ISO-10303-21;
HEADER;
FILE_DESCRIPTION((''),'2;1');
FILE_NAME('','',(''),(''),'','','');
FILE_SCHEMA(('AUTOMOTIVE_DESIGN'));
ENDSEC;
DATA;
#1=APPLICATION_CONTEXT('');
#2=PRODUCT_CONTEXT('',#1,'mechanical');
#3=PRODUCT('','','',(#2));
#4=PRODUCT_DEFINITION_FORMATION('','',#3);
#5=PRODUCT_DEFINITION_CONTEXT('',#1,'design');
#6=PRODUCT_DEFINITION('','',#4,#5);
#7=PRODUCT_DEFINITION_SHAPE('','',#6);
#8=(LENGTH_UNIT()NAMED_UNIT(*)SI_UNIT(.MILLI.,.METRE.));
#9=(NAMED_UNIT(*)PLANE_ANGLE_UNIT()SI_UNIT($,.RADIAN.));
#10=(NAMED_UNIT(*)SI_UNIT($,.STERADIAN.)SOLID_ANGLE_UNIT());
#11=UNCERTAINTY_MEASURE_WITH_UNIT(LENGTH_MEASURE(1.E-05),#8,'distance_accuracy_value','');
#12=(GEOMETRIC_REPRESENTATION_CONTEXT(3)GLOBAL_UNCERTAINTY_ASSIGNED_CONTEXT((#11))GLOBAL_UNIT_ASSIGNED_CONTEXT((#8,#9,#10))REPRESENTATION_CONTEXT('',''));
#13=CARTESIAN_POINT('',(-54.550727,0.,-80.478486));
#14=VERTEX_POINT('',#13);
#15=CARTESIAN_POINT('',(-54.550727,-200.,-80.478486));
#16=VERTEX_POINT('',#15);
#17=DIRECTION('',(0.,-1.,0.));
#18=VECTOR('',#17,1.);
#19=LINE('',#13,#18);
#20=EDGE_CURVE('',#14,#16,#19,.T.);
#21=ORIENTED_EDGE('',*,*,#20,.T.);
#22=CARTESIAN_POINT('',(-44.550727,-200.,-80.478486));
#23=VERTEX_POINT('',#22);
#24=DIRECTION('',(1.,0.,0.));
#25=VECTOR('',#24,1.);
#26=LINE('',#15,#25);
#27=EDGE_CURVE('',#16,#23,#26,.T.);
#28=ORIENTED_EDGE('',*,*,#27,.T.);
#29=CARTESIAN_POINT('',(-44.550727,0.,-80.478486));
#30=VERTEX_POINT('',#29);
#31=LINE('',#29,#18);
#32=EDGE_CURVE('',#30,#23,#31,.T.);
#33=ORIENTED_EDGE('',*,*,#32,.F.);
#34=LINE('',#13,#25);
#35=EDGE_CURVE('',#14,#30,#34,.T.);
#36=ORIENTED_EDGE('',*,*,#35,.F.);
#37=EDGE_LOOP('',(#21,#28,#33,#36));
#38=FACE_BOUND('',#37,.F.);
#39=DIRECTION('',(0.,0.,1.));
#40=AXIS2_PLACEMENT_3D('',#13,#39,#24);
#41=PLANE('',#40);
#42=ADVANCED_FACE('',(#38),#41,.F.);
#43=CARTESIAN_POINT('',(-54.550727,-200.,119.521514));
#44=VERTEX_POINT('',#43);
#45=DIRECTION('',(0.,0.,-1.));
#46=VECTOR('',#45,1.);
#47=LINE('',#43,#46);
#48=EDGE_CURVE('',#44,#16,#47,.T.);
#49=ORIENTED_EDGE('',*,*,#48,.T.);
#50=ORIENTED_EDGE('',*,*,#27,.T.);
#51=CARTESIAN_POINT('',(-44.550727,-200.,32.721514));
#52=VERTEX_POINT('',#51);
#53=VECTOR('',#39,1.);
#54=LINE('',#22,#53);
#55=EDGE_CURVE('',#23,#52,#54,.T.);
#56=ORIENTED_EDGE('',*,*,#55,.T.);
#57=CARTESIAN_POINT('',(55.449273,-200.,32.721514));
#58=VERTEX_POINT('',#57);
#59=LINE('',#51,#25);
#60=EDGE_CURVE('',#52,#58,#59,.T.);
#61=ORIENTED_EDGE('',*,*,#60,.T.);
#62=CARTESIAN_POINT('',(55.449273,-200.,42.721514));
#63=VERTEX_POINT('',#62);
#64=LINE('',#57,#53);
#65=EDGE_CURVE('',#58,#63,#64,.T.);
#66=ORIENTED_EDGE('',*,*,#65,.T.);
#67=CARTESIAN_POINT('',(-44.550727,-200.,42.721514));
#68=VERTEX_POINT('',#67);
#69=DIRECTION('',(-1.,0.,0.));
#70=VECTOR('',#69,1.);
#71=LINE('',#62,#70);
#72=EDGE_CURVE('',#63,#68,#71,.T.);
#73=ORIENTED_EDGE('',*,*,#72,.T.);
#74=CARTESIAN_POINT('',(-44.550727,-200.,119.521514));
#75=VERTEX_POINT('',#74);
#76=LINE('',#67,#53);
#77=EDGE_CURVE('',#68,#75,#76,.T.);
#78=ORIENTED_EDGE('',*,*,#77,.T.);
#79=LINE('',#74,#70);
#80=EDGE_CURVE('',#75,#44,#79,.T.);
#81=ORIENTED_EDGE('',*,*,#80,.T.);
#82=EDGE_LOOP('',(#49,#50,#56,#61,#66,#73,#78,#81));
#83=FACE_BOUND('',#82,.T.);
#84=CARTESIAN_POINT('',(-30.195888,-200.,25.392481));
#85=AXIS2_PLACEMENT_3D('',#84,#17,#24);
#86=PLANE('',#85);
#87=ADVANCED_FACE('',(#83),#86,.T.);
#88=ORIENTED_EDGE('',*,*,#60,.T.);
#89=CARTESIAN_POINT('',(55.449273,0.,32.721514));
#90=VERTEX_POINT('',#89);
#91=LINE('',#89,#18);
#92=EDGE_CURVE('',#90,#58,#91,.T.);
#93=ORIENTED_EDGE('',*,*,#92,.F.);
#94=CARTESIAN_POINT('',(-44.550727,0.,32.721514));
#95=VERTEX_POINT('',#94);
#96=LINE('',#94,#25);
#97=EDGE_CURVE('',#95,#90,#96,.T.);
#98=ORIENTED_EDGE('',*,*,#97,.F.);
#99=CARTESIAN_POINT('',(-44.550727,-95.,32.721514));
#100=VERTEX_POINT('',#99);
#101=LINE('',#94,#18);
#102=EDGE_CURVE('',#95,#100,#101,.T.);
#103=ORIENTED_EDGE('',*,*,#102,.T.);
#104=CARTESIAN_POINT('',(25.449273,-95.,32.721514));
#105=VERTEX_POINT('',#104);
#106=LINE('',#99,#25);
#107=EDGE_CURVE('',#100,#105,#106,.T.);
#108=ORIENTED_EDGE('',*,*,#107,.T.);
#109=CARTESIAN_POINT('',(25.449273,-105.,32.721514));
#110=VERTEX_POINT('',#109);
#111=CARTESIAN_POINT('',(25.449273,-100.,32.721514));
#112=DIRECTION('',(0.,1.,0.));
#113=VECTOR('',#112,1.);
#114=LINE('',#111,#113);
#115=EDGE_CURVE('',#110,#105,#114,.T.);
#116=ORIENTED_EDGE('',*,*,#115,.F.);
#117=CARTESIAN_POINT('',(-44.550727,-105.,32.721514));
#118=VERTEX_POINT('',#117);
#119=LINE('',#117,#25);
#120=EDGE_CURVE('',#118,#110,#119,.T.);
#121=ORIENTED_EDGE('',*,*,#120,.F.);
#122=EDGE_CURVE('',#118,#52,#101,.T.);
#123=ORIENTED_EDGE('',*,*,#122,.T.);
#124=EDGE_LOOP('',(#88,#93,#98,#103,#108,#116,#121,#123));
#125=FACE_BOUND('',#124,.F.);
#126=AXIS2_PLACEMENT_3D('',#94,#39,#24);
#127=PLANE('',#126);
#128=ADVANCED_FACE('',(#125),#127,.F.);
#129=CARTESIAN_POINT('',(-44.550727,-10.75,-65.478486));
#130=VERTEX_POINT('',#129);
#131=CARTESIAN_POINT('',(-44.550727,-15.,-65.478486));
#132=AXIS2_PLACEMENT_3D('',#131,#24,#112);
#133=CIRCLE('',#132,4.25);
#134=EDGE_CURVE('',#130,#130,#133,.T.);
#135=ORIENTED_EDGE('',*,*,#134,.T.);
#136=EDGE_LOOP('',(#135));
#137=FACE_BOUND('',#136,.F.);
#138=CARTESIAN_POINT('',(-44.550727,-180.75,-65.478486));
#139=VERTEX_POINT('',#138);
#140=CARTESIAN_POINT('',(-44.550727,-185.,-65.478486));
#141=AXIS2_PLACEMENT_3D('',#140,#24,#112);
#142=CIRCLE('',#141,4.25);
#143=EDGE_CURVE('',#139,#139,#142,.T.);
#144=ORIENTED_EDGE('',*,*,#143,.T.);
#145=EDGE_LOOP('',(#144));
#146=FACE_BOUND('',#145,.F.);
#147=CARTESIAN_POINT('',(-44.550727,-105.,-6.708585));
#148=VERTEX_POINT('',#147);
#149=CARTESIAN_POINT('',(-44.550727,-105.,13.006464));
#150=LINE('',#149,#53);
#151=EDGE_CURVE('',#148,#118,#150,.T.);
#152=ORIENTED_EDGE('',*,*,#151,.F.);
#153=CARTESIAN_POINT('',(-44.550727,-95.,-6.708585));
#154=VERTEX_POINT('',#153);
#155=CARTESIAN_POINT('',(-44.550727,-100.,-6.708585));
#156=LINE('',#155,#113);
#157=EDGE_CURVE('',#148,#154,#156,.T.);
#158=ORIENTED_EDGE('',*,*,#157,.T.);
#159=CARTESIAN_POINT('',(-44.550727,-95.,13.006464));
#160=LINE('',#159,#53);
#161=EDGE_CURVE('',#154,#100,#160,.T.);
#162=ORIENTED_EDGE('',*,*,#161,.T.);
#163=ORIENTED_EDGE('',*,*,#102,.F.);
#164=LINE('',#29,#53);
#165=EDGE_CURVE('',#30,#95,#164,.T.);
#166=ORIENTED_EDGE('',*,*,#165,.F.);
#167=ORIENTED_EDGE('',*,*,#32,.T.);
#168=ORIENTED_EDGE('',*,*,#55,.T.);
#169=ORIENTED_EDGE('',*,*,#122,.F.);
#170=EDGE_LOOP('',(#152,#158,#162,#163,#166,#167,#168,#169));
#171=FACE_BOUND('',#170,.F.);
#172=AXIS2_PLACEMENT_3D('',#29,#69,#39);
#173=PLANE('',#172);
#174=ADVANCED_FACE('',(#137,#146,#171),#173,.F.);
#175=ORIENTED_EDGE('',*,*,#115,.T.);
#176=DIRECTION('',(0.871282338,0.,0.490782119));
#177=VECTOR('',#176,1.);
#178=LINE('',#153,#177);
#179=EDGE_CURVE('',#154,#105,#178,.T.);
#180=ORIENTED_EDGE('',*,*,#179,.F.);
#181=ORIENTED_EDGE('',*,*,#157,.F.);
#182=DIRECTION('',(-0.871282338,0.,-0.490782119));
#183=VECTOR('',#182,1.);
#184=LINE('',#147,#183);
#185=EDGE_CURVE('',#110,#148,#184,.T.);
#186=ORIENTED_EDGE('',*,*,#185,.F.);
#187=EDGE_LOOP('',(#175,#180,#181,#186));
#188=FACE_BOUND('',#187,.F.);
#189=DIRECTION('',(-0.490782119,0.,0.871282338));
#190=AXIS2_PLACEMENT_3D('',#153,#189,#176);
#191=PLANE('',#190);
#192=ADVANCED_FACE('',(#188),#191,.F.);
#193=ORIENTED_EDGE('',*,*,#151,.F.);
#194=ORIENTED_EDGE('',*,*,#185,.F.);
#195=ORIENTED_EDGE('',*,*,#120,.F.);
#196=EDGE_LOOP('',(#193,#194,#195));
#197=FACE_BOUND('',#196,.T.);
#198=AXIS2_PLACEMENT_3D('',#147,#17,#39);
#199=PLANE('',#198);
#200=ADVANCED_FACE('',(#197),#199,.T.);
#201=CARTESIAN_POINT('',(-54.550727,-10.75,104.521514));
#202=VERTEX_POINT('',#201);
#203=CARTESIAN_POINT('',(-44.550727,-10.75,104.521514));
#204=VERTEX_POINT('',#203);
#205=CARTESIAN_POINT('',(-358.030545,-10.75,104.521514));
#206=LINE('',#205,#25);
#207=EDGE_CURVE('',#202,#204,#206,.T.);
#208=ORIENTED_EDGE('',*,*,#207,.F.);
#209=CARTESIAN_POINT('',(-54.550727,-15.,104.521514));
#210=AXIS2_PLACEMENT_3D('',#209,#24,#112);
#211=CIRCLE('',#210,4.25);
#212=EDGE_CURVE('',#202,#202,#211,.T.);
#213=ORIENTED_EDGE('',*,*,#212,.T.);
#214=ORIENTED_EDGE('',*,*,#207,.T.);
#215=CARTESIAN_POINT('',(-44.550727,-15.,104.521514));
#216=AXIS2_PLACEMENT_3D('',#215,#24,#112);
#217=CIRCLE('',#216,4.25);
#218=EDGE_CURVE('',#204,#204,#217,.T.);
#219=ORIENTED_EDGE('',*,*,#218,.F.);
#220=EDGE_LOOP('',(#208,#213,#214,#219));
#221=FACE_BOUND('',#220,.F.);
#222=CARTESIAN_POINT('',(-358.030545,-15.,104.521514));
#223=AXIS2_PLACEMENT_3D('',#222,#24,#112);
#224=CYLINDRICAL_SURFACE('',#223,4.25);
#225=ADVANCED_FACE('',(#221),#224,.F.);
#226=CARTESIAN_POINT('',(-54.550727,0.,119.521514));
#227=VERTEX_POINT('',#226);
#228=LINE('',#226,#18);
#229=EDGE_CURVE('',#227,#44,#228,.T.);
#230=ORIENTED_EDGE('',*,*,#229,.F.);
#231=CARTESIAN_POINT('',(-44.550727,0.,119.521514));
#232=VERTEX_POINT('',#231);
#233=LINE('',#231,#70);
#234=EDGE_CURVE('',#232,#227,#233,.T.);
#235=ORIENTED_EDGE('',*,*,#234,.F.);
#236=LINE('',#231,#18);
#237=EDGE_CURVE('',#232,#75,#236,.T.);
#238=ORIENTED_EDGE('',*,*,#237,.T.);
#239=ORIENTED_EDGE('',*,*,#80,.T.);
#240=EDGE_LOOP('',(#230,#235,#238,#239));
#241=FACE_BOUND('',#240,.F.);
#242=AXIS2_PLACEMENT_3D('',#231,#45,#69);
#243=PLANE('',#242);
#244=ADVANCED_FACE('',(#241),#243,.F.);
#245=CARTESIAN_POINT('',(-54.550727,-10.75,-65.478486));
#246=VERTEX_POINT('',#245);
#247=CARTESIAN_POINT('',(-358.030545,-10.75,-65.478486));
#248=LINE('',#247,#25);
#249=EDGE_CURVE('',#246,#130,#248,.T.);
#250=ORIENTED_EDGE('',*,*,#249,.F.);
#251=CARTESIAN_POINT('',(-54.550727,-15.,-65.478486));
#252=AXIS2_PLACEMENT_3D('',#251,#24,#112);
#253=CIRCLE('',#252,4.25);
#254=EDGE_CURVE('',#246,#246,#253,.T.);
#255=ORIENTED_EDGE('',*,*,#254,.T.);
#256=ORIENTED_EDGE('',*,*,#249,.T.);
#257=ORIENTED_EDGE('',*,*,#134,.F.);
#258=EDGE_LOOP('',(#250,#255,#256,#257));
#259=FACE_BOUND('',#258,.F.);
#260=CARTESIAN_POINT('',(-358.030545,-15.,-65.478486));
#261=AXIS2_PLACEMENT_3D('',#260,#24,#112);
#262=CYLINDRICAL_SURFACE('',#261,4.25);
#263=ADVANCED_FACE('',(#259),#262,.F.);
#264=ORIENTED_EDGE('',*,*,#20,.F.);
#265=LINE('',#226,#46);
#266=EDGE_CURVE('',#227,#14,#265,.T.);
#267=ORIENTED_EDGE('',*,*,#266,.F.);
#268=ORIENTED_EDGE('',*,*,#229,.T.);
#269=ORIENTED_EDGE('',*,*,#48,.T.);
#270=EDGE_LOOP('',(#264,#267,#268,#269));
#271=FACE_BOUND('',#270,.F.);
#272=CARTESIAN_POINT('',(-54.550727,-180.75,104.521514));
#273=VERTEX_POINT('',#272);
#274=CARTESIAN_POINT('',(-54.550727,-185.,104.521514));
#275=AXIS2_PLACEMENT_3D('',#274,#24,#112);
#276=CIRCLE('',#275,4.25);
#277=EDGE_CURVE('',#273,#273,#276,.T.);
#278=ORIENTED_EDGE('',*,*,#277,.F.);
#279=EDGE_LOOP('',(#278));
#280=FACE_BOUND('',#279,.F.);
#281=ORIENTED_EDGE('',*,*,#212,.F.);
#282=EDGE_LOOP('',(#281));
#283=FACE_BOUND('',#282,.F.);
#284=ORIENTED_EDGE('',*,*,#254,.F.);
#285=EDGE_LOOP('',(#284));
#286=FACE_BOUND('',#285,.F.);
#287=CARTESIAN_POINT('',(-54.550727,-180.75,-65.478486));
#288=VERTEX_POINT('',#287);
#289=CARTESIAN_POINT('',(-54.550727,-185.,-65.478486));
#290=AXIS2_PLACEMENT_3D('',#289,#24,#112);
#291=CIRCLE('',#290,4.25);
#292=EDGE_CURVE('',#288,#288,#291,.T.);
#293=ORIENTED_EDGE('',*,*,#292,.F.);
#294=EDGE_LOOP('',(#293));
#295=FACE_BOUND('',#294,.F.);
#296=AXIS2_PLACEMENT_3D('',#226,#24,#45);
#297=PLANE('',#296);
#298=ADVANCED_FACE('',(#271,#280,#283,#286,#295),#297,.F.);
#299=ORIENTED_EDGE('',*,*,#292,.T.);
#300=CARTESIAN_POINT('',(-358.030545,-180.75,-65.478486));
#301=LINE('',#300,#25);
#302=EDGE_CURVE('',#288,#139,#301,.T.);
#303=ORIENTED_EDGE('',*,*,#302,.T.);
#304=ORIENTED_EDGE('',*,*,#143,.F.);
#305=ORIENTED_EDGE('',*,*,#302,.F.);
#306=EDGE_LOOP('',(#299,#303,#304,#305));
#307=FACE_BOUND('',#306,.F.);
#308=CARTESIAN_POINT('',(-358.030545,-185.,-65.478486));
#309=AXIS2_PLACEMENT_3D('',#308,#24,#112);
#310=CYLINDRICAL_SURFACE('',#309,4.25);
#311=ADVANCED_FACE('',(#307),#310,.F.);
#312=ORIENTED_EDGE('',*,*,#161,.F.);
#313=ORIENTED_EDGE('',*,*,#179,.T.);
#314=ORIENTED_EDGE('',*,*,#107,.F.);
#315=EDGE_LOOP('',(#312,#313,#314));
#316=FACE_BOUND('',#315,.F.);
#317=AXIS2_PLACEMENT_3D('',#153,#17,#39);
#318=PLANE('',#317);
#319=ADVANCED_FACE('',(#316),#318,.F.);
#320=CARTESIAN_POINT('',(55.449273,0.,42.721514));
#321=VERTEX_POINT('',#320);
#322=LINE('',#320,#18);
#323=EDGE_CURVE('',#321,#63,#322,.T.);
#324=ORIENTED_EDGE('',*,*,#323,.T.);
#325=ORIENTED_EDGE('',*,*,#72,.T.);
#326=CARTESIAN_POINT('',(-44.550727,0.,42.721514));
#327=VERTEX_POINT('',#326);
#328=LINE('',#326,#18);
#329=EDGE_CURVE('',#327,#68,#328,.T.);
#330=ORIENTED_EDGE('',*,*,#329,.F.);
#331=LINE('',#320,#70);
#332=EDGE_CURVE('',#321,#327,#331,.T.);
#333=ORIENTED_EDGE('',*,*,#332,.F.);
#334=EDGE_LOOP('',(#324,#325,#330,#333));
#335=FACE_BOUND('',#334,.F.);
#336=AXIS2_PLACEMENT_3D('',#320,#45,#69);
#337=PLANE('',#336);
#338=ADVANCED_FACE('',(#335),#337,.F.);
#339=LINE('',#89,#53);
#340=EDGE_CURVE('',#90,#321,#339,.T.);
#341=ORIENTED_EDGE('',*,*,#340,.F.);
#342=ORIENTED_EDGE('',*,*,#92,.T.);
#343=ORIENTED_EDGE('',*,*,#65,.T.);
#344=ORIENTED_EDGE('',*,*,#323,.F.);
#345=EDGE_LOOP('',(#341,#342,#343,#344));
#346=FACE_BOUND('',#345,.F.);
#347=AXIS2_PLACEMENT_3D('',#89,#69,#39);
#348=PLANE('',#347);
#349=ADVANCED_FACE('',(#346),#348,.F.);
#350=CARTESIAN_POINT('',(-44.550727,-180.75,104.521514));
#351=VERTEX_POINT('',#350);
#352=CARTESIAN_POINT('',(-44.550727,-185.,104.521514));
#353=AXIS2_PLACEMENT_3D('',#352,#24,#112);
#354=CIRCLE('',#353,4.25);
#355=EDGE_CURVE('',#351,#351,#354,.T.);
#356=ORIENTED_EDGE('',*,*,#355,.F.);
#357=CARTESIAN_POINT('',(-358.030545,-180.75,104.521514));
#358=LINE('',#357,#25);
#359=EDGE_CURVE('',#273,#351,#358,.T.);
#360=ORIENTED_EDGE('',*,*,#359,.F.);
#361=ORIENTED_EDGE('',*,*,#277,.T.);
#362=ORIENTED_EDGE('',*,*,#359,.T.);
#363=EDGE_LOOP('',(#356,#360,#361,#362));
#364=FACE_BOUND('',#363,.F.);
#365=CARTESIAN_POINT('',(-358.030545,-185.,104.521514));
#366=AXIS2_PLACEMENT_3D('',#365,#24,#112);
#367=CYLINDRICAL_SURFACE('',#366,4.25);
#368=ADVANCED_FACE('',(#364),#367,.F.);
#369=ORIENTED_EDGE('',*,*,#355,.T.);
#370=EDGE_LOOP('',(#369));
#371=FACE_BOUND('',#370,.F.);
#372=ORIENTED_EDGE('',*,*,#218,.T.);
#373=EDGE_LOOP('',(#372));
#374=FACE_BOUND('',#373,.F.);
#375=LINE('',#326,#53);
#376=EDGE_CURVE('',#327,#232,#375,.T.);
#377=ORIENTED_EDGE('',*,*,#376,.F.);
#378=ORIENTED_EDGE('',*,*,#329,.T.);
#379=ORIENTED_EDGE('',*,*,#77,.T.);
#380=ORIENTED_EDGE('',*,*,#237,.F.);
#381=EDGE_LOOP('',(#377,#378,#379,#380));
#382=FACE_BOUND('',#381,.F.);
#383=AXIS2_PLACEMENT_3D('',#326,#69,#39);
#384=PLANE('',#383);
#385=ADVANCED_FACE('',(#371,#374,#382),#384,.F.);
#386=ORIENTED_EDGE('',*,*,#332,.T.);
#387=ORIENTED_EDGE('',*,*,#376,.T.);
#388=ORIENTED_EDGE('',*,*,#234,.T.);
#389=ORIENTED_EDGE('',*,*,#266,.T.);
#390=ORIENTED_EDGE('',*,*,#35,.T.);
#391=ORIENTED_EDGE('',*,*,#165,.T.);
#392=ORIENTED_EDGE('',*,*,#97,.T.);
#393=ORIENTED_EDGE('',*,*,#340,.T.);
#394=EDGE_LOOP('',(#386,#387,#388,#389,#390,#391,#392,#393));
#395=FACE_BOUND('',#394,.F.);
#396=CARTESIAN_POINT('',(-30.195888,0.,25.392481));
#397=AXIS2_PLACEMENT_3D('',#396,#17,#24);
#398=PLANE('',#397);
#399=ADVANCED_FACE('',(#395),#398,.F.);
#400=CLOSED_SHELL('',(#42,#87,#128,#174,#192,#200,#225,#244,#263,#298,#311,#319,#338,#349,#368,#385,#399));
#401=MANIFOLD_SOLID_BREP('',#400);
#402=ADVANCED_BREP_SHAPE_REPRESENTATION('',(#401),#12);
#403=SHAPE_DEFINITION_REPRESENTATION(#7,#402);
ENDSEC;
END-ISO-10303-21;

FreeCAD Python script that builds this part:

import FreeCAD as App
import Part
import Sketcher


def add_polygon(sketch, points):
    """Adds a closed chain of lines whose ends are joined by coincident constraints."""
    first, n = sketch.GeometryCount, len(points)
    for a, b in zip(points, points[1:] + points[:1]):
        sketch.addGeometry(Part.LineSegment(App.Vector(*a, 0), App.Vector(*b, 0)), False)
    for i in range(n):
        sketch.addConstraint(Sketcher.Constraint("Coincident", first + i, 2, first + (i + 1) % n, 1))

doc = App.newDocument("Part")
body = doc.addObject("PartDesign::Body", "Body")

# Sketch on XZ plane
sketch1 = body.newObject("Sketcher::SketchObject", "Sketch")
sketch1.AttachmentSupport = (doc.getObject("XZ_Plane"), [""])
sketch1.MapMode = "FlatFace"
add_polygon(sketch1, [(-45, 120), (-55, 120), (-55, -80), (-45, -80), (-45, 33), (55, 33), (55, 43), (-45, 43)])  # lines 0-7
sketch1.addConstraint(Sketcher.Constraint("Horizontal", 0))
sketch1.addConstraint(Sketcher.Constraint("Vertical", 1))
sketch1.addConstraint(Sketcher.Constraint("Horizontal", 2))
sketch1.addConstraint(Sketcher.Constraint("Vertical", 3))
sketch1.addConstraint(Sketcher.Constraint("Horizontal", 4))
sketch1.addConstraint(Sketcher.Constraint("Vertical", 5))
sketch1.addConstraint(Sketcher.Constraint("Horizontal", 6))
sketch1.addConstraint(Sketcher.Constraint("Vertical", 7))
sketch1.addConstraint(Sketcher.Constraint("Vertical", 3, 2, 6, 2))
sketch1.addConstraint(Sketcher.Constraint("Equal", 2, 5))
sketch1.addConstraint(Sketcher.Constraint("DistanceX", 0, 2, 0, 1, 10.0))
sketch1.addConstraint(Sketcher.Constraint("DistanceX", 4, 1, 4, 2, 100.0))
sketch1.addConstraint(Sketcher.Constraint("DistanceY", 1, 2, 1, 1, 200.0))
sketch1.addConstraint(Sketcher.Constraint("DistanceY", 3, 1, 3, 2, 113.2))
sketch1.addConstraint(Sketcher.Constraint("DistanceX", 0, 2, -1, 1, 54.550727))
sketch1.addConstraint(Sketcher.Constraint("DistanceY", -1, 1, 0, 2, 119.521514))
pad1 = body.newObject("PartDesign::Pad", "Pad")
pad1.Profile = sketch1
pad1.Length = 200

# Sketch on YZ plane
sketch2 = body.newObject("Sketcher::SketchObject", "Sketch001")
sketch2.AttachmentSupport = (doc.getObject("YZ_Plane"), [""])
sketch2.MapMode = "FlatFace"
sketch2.AttachmentOffset = App.Placement(App.Vector(0, 0, -44.550727), App.Rotation())
add_polygon(sketch2, [(-105, 33), (-105, -7), (-95, -7), (-95, 33)])  # lines 0-3
sketch2.addConstraint(Sketcher.Constraint("Vertical", 0))
sketch2.addConstraint(Sketcher.Constraint("Horizontal", 1))
sketch2.addConstraint(Sketcher.Constraint("Vertical", 2))
sketch2.addConstraint(Sketcher.Constraint("Horizontal", 3))
sketch2.addConstraint(Sketcher.Constraint("DistanceX", 1, 1, 1, 2, 10.0))
sketch2.addConstraint(Sketcher.Constraint("DistanceX", 0, 2, -1, 1, 105.0))
sketch2.addConstraint(Sketcher.Constraint("DistanceY", 0, 2, 0, 1, 39.430098))
sketch2.addConstraint(Sketcher.Constraint("DistanceY", 0, 2, -1, 1, 6.708585))
pad2 = body.newObject("PartDesign::Pad", "Pad001")
pad2.Profile = sketch2
pad2.Length = 70

# Sketch on XZ plane
sketch3 = body.newObject("Sketcher::SketchObject", "Sketch002")
sketch3.AttachmentSupport = (doc.getObject("XZ_Plane"), [""])
sketch3.MapMode = "FlatFace"
sketch3.AttachmentOffset = App.Placement(App.Vector(0, 0, 95), App.Rotation())
add_polygon(sketch3, [(-45, -7), (25, 33), (25, -7)])  # lines 0-2
sketch3.addConstraint(Sketcher.Constraint("Vertical", 1))
sketch3.addConstraint(Sketcher.Constraint("Horizontal", 2))
sketch3.addConstraint(Sketcher.Constraint("DistanceX", 2, 2, 2, 1, 70.0))
sketch3.addConstraint(Sketcher.Constraint("DistanceY", 1, 2, 1, 1, 39.430098))
sketch3.addConstraint(Sketcher.Constraint("DistanceX", -1, 1, 0, 2, 25.449273))
sketch3.addConstraint(Sketcher.Constraint("DistanceY", -1, 1, 0, 2, 32.721514))
pocket1 = body.newObject("PartDesign::Pocket", "Pocket")
pocket1.Profile = sketch3
pocket1.Length = 70
pocket1.Reversed = True

# Sketch on YZ plane
sketch4 = body.newObject("Sketcher::SketchObject", "Sketch003")
sketch4.AttachmentSupport = (doc.getObject("YZ_Plane"), [""])
sketch4.MapMode = "FlatFace"
sketch4.AttachmentOffset = App.Placement(App.Vector(0, 0, -54.550727), App.Rotation())
sketch4.addGeometry(Part.Circle(App.Vector(-185, 104.5, 0), App.Vector(0, 0, 1), 4.2), False)
sketch4.addGeometry(Part.Circle(App.Vector(-15, 104.5, 0), App.Vector(0, 0, 1), 4.2), False)
sketch4.addGeometry(Part.Circle(App.Vector(-15, -65.5, 0), App.Vector(0, 0, 1), 4.2), False)
sketch4.addGeometry(Part.Circle(App.Vector(-185, -65.5, 0), App.Vector(0, 0, 1), 4.2), False)
sketch4.addConstraint(Sketcher.Constraint("Equal", 0, 1))
sketch4.addConstraint(Sketcher.Constraint("Equal", 1, 2))
sketch4.addConstraint(Sketcher.Constraint("Equal", 2, 3))
sketch4.addConstraint(Sketcher.Constraint("Horizontal", 0, 3, 1, 3))
sketch4.addConstraint(Sketcher.Constraint("Horizontal", 2, 3, 3, 3))
sketch4.addConstraint(Sketcher.Constraint("Vertical", 1, 3, 2, 3))
sketch4.addConstraint(Sketcher.Constraint("Vertical", 0, 3, 3, 3))
sketch4.addConstraint(Sketcher.Constraint("Diameter", 0, 8.5))
sketch4.addConstraint(Sketcher.Constraint("DistanceX", 0, 3, -1, 1, 185.0))
sketch4.addConstraint(Sketcher.Constraint("DistanceX", 1, 3, -1, 1, 15.0))
sketch4.addConstraint(Sketcher.Constraint("DistanceY", 2, 3, 1, 3, 170.0))
sketch4.addConstraint(Sketcher.Constraint("DistanceY", -1, 1, 0, 3, 104.521514))
doc.recompute()
hole = body.newObject("PartDesign::Hole", "Hole")
hole.Profile = sketch4
hole.ThreadType = "None"
hole.Diameter = 8.5
hole.DepthType = "ThroughAll"
hole.Reversed = True

doc.recompute()
